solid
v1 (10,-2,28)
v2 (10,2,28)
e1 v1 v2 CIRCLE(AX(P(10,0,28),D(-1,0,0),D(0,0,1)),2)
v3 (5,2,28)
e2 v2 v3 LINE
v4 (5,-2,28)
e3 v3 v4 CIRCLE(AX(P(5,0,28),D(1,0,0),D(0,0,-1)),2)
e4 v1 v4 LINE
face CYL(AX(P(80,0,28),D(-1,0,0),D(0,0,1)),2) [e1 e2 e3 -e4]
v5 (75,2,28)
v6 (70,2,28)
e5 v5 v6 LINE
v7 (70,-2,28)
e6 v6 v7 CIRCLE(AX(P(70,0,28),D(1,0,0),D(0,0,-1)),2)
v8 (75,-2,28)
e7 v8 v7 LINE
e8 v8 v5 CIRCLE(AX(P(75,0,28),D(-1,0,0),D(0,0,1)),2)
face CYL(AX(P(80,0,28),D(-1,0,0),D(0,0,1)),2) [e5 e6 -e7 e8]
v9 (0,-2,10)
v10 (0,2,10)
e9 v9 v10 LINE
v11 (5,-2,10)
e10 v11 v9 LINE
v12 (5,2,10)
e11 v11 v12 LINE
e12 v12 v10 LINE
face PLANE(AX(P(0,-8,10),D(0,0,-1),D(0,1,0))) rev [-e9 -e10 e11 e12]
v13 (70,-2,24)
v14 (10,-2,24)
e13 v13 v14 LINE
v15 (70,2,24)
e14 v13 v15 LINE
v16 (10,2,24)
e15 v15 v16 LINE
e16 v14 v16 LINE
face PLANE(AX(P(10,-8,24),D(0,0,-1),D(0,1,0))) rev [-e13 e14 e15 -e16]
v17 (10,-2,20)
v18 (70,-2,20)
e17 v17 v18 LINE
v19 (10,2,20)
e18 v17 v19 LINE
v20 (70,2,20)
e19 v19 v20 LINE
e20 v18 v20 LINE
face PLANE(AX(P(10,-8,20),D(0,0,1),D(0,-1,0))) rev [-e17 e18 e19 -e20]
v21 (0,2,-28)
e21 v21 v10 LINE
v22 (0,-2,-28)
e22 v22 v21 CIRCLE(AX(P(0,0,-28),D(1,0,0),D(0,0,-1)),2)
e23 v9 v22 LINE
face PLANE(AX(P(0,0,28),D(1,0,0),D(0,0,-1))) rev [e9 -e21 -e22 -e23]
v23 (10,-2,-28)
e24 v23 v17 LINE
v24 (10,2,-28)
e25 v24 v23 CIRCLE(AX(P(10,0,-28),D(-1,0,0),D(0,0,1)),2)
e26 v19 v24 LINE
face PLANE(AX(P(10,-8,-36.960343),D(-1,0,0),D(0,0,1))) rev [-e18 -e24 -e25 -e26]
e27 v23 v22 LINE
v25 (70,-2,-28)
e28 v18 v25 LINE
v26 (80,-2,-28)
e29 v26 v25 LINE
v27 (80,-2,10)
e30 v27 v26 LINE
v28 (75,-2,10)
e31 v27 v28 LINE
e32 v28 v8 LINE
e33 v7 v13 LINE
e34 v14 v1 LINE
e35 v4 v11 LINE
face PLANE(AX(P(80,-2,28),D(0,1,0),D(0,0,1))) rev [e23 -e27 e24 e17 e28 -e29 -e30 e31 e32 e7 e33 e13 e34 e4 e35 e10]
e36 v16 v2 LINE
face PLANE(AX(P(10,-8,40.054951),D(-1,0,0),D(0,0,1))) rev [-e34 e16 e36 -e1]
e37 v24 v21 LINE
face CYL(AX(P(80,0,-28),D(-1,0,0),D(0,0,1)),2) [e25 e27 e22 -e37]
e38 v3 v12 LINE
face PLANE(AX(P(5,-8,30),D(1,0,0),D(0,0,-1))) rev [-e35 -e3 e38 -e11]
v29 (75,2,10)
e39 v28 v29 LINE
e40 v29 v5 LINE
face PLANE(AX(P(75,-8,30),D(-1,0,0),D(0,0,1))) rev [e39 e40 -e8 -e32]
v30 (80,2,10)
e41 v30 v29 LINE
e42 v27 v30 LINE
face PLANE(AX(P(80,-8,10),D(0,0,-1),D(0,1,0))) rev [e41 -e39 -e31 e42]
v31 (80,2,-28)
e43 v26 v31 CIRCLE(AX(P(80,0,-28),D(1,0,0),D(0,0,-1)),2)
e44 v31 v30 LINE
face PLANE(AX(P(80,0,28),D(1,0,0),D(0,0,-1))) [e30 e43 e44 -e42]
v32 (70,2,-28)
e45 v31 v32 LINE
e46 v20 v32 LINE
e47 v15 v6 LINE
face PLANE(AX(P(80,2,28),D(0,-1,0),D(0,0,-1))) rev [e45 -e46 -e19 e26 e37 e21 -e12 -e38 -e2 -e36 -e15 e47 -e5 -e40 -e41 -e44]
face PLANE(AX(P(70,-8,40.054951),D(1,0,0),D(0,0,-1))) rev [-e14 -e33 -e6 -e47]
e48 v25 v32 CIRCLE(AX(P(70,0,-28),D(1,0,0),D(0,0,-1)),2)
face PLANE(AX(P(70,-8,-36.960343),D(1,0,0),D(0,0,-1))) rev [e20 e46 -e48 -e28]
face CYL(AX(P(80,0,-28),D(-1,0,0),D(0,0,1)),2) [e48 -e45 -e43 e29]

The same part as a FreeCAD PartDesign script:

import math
import FreeCAD as App
import Part
import Sketcher
from FreeCAD import Vector


def add_polygon(sketch, points):
    """Adds a closed chain of lines whose ends are joined by coincident constraints."""
    first, n = sketch.GeometryCount, len(points)
    for a, b in zip(points, points[1:] + points[:1]):
        sketch.addGeometry(Part.LineSegment(App.Vector(*a, 0), App.Vector(*b, 0)), False)
    for i in range(n):
        sketch.addConstraint(Sketcher.Constraint("Coincident", first + i, 2, first + (i + 1) % n, 1))

doc = App.newDocument("Part")
body = doc.addObject("PartDesign::Body", "Body")

sketch1 = doc.addObject("Sketcher::SketchObject", "Sketch")
body.addObject(sketch1)
sketch1.AttachmentSupport = (doc.YZ_Plane, [""])
sketch1.MapMode = "FlatFace"
sketch1.addGeometry(Part.LineSegment(Vector(2, -28, 0), Vector(2, 28, 0)), False)
sketch1.addGeometry(Part.ArcOfCircle(Part.Circle(Vector(0, 28, 0), Vector(0, 0, 1), 2), math.radians(0), math.radians(180)), False)
sketch1.addGeometry(Part.LineSegment(Vector(-2, 28, 0), Vector(-2, -28, 0)), False)
sketch1.addGeometry(Part.ArcOfCircle(Part.Circle(Vector(0, -28, 0), Vector(0, 0, 1), 2), math.radians(180), math.radians(360)), False)
sketch1.addConstraint(Sketcher.Constraint("Tangent", 0, 2, 1, 1))
sketch1.addConstraint(Sketcher.Constraint("Tangent", 1, 2, 2, 1))
sketch1.addConstraint(Sketcher.Constraint("Tangent", 2, 2, 3, 1))
sketch1.addConstraint(Sketcher.Constraint("Tangent", 3, 2, 0, 1))
sketch1.addConstraint(Sketcher.Constraint("Vertical", 0))
sketch1.addConstraint(Sketcher.Constraint("Vertical", 2))
sketch1.addConstraint(Sketcher.Constraint("Symmetric", 1, 3, 3, 3, -1, 1))
sketch1.addConstraint(Sketcher.Constraint("Radius", 1, 2.0))
sketch1.addConstraint(Sketcher.Constraint("DistanceY", 0, 1, 0, 2, 56.0))
pad1 = doc.addObject("PartDesign::Pad", "Pad")
body.addObject(pad1)
pad1.Profile = sketch1
pad1.Length = 80

sketch2 = doc.addObject("Sketcher::SketchObject", "Sketch001")
body.addObject(sketch2)
sketch2.AttachmentSupport = (doc.XZ_Plane, [""])
sketch2.MapMode = "FlatFace"
sketch2.AttachmentOffset = App.Placement(Vector(0, 0, -2), App.Rotation())
add_polygon(sketch2, [(10, 24), (10, 40), (70, 40), (70, 24)])
add_polygon(sketch2, [(10, -37), (10, 20), (70, 20), (70, -37)])
sketch2.addConstraint(Sketcher.Constraint("Vertical", 0))
sketch2.addConstraint(Sketcher.Constraint("Horizontal", 1))
sketch2.addConstraint(Sketcher.Constraint("Vertical", 2))
sketch2.addConstraint(Sketcher.Constraint("Horizontal", 3))
sketch2.addConstraint(Sketcher.Constraint("Vertical", 4))
sketch2.addConstraint(Sketcher.Constraint("Horizontal", 5))
sketch2.addConstraint(Sketcher.Constraint("Vertical", 6))
sketch2.addConstraint(Sketcher.Constraint("Horizontal", 7))
sketch2.addConstraint(Sketcher.Constraint("Vertical", 3, 2, 4, 2))
sketch2.addConstraint(Sketcher.Constraint("Vertical", 2, 2, 5, 2))
sketch2.addConstraint(Sketcher.Constraint("DistanceX", 1, 1, 1, 2, 60.0))
sketch2.addConstraint(Sketcher.Constraint("DistanceX", -1, 1, 0, 2, 10.0))
sketch2.addConstraint(Sketcher.Constraint("DistanceY", -1, 1, 2, 2, 24.0))
sketch2.addConstraint(Sketcher.Constraint("DistanceY", -1, 1, 4, 2, 20.0))
sketch2.addConstraint(Sketcher.Constraint("DistanceY", 0, 1, 0, 2, 16.054951))
sketch2.addConstraint(Sketcher.Constraint("DistanceY", 4, 1, 4, 2, 56.960343))
pocket1 = doc.addObject("PartDesign::Pocket", "Pocket")
body.addObject(pocket1)
pocket1.Profile = sketch2
pocket1.Length = 10
pocket1.Reversed = True

sketch3 = doc.addObject("Sketcher::SketchObject", "Sketch002")
body.addObject(sketch3)
sketch3.AttachmentSupport = (doc.XZ_Plane, [""])
sketch3.MapMode = "FlatFace"
sketch3.AttachmentOffset = App.Placement(Vector(0, 0, -2), App.Rotation())
add_polygon(sketch3, [(0, 10), (0, 30), (5, 30), (5, 10)])
add_polygon(sketch3, [(75, 10), (75, 30), (80, 30), (80, 10)])
sketch3.addConstraint(Sketcher.Constraint("Vertical", 0))
sketch3.addConstraint(Sketcher.Constraint("Horizontal", 1))
sketch3.addConstraint(Sketcher.Constraint("Vertical", 2))
sketch3.addConstraint(Sketcher.Constraint("Horizontal", 3))
sketch3.addConstraint(Sketcher.Constraint("Vertical", 4))
sketch3.addConstraint(Sketcher.Constraint("Horizontal", 5))
sketch3.addConstraint(Sketcher.Constraint("Vertical", 6))
sketch3.addConstraint(Sketcher.Constraint("Horizontal", 7))
sketch3.addConstraint(Sketcher.Constraint("PointOnObject", 0, 2, -2))
sketch3.addConstraint(Sketcher.Constraint("Horizontal", 1, 2, 4, 2))
sketch3.addConstraint(Sketcher.Constraint("Horizontal", 3, 2, 6, 2))
sketch3.addConstraint(Sketcher.Constraint("Equal", 3, 5))
sketch3.addConstraint(Sketcher.Constraint("DistanceX", 1, 1, 1, 2, 5.0))
sketch3.addConstraint(Sketcher.Constraint("DistanceY", 0, 1, 0, 2, 20.0))
sketch3.addConstraint(Sketcher.Constraint("DistanceY", -1, 1, 0, 2, 30.0))
sketch3.addConstraint(Sketcher.Constraint("DistanceX", -1, 1, 4, 2, 75.0))
pocket2 = doc.addObject("PartDesign::Pocket", "Pocket001")
body.addObject(pocket2)
pocket2.Profile = sketch3
pocket2.Length = 10
pocket2.Reversed = True

doc.recompute()
